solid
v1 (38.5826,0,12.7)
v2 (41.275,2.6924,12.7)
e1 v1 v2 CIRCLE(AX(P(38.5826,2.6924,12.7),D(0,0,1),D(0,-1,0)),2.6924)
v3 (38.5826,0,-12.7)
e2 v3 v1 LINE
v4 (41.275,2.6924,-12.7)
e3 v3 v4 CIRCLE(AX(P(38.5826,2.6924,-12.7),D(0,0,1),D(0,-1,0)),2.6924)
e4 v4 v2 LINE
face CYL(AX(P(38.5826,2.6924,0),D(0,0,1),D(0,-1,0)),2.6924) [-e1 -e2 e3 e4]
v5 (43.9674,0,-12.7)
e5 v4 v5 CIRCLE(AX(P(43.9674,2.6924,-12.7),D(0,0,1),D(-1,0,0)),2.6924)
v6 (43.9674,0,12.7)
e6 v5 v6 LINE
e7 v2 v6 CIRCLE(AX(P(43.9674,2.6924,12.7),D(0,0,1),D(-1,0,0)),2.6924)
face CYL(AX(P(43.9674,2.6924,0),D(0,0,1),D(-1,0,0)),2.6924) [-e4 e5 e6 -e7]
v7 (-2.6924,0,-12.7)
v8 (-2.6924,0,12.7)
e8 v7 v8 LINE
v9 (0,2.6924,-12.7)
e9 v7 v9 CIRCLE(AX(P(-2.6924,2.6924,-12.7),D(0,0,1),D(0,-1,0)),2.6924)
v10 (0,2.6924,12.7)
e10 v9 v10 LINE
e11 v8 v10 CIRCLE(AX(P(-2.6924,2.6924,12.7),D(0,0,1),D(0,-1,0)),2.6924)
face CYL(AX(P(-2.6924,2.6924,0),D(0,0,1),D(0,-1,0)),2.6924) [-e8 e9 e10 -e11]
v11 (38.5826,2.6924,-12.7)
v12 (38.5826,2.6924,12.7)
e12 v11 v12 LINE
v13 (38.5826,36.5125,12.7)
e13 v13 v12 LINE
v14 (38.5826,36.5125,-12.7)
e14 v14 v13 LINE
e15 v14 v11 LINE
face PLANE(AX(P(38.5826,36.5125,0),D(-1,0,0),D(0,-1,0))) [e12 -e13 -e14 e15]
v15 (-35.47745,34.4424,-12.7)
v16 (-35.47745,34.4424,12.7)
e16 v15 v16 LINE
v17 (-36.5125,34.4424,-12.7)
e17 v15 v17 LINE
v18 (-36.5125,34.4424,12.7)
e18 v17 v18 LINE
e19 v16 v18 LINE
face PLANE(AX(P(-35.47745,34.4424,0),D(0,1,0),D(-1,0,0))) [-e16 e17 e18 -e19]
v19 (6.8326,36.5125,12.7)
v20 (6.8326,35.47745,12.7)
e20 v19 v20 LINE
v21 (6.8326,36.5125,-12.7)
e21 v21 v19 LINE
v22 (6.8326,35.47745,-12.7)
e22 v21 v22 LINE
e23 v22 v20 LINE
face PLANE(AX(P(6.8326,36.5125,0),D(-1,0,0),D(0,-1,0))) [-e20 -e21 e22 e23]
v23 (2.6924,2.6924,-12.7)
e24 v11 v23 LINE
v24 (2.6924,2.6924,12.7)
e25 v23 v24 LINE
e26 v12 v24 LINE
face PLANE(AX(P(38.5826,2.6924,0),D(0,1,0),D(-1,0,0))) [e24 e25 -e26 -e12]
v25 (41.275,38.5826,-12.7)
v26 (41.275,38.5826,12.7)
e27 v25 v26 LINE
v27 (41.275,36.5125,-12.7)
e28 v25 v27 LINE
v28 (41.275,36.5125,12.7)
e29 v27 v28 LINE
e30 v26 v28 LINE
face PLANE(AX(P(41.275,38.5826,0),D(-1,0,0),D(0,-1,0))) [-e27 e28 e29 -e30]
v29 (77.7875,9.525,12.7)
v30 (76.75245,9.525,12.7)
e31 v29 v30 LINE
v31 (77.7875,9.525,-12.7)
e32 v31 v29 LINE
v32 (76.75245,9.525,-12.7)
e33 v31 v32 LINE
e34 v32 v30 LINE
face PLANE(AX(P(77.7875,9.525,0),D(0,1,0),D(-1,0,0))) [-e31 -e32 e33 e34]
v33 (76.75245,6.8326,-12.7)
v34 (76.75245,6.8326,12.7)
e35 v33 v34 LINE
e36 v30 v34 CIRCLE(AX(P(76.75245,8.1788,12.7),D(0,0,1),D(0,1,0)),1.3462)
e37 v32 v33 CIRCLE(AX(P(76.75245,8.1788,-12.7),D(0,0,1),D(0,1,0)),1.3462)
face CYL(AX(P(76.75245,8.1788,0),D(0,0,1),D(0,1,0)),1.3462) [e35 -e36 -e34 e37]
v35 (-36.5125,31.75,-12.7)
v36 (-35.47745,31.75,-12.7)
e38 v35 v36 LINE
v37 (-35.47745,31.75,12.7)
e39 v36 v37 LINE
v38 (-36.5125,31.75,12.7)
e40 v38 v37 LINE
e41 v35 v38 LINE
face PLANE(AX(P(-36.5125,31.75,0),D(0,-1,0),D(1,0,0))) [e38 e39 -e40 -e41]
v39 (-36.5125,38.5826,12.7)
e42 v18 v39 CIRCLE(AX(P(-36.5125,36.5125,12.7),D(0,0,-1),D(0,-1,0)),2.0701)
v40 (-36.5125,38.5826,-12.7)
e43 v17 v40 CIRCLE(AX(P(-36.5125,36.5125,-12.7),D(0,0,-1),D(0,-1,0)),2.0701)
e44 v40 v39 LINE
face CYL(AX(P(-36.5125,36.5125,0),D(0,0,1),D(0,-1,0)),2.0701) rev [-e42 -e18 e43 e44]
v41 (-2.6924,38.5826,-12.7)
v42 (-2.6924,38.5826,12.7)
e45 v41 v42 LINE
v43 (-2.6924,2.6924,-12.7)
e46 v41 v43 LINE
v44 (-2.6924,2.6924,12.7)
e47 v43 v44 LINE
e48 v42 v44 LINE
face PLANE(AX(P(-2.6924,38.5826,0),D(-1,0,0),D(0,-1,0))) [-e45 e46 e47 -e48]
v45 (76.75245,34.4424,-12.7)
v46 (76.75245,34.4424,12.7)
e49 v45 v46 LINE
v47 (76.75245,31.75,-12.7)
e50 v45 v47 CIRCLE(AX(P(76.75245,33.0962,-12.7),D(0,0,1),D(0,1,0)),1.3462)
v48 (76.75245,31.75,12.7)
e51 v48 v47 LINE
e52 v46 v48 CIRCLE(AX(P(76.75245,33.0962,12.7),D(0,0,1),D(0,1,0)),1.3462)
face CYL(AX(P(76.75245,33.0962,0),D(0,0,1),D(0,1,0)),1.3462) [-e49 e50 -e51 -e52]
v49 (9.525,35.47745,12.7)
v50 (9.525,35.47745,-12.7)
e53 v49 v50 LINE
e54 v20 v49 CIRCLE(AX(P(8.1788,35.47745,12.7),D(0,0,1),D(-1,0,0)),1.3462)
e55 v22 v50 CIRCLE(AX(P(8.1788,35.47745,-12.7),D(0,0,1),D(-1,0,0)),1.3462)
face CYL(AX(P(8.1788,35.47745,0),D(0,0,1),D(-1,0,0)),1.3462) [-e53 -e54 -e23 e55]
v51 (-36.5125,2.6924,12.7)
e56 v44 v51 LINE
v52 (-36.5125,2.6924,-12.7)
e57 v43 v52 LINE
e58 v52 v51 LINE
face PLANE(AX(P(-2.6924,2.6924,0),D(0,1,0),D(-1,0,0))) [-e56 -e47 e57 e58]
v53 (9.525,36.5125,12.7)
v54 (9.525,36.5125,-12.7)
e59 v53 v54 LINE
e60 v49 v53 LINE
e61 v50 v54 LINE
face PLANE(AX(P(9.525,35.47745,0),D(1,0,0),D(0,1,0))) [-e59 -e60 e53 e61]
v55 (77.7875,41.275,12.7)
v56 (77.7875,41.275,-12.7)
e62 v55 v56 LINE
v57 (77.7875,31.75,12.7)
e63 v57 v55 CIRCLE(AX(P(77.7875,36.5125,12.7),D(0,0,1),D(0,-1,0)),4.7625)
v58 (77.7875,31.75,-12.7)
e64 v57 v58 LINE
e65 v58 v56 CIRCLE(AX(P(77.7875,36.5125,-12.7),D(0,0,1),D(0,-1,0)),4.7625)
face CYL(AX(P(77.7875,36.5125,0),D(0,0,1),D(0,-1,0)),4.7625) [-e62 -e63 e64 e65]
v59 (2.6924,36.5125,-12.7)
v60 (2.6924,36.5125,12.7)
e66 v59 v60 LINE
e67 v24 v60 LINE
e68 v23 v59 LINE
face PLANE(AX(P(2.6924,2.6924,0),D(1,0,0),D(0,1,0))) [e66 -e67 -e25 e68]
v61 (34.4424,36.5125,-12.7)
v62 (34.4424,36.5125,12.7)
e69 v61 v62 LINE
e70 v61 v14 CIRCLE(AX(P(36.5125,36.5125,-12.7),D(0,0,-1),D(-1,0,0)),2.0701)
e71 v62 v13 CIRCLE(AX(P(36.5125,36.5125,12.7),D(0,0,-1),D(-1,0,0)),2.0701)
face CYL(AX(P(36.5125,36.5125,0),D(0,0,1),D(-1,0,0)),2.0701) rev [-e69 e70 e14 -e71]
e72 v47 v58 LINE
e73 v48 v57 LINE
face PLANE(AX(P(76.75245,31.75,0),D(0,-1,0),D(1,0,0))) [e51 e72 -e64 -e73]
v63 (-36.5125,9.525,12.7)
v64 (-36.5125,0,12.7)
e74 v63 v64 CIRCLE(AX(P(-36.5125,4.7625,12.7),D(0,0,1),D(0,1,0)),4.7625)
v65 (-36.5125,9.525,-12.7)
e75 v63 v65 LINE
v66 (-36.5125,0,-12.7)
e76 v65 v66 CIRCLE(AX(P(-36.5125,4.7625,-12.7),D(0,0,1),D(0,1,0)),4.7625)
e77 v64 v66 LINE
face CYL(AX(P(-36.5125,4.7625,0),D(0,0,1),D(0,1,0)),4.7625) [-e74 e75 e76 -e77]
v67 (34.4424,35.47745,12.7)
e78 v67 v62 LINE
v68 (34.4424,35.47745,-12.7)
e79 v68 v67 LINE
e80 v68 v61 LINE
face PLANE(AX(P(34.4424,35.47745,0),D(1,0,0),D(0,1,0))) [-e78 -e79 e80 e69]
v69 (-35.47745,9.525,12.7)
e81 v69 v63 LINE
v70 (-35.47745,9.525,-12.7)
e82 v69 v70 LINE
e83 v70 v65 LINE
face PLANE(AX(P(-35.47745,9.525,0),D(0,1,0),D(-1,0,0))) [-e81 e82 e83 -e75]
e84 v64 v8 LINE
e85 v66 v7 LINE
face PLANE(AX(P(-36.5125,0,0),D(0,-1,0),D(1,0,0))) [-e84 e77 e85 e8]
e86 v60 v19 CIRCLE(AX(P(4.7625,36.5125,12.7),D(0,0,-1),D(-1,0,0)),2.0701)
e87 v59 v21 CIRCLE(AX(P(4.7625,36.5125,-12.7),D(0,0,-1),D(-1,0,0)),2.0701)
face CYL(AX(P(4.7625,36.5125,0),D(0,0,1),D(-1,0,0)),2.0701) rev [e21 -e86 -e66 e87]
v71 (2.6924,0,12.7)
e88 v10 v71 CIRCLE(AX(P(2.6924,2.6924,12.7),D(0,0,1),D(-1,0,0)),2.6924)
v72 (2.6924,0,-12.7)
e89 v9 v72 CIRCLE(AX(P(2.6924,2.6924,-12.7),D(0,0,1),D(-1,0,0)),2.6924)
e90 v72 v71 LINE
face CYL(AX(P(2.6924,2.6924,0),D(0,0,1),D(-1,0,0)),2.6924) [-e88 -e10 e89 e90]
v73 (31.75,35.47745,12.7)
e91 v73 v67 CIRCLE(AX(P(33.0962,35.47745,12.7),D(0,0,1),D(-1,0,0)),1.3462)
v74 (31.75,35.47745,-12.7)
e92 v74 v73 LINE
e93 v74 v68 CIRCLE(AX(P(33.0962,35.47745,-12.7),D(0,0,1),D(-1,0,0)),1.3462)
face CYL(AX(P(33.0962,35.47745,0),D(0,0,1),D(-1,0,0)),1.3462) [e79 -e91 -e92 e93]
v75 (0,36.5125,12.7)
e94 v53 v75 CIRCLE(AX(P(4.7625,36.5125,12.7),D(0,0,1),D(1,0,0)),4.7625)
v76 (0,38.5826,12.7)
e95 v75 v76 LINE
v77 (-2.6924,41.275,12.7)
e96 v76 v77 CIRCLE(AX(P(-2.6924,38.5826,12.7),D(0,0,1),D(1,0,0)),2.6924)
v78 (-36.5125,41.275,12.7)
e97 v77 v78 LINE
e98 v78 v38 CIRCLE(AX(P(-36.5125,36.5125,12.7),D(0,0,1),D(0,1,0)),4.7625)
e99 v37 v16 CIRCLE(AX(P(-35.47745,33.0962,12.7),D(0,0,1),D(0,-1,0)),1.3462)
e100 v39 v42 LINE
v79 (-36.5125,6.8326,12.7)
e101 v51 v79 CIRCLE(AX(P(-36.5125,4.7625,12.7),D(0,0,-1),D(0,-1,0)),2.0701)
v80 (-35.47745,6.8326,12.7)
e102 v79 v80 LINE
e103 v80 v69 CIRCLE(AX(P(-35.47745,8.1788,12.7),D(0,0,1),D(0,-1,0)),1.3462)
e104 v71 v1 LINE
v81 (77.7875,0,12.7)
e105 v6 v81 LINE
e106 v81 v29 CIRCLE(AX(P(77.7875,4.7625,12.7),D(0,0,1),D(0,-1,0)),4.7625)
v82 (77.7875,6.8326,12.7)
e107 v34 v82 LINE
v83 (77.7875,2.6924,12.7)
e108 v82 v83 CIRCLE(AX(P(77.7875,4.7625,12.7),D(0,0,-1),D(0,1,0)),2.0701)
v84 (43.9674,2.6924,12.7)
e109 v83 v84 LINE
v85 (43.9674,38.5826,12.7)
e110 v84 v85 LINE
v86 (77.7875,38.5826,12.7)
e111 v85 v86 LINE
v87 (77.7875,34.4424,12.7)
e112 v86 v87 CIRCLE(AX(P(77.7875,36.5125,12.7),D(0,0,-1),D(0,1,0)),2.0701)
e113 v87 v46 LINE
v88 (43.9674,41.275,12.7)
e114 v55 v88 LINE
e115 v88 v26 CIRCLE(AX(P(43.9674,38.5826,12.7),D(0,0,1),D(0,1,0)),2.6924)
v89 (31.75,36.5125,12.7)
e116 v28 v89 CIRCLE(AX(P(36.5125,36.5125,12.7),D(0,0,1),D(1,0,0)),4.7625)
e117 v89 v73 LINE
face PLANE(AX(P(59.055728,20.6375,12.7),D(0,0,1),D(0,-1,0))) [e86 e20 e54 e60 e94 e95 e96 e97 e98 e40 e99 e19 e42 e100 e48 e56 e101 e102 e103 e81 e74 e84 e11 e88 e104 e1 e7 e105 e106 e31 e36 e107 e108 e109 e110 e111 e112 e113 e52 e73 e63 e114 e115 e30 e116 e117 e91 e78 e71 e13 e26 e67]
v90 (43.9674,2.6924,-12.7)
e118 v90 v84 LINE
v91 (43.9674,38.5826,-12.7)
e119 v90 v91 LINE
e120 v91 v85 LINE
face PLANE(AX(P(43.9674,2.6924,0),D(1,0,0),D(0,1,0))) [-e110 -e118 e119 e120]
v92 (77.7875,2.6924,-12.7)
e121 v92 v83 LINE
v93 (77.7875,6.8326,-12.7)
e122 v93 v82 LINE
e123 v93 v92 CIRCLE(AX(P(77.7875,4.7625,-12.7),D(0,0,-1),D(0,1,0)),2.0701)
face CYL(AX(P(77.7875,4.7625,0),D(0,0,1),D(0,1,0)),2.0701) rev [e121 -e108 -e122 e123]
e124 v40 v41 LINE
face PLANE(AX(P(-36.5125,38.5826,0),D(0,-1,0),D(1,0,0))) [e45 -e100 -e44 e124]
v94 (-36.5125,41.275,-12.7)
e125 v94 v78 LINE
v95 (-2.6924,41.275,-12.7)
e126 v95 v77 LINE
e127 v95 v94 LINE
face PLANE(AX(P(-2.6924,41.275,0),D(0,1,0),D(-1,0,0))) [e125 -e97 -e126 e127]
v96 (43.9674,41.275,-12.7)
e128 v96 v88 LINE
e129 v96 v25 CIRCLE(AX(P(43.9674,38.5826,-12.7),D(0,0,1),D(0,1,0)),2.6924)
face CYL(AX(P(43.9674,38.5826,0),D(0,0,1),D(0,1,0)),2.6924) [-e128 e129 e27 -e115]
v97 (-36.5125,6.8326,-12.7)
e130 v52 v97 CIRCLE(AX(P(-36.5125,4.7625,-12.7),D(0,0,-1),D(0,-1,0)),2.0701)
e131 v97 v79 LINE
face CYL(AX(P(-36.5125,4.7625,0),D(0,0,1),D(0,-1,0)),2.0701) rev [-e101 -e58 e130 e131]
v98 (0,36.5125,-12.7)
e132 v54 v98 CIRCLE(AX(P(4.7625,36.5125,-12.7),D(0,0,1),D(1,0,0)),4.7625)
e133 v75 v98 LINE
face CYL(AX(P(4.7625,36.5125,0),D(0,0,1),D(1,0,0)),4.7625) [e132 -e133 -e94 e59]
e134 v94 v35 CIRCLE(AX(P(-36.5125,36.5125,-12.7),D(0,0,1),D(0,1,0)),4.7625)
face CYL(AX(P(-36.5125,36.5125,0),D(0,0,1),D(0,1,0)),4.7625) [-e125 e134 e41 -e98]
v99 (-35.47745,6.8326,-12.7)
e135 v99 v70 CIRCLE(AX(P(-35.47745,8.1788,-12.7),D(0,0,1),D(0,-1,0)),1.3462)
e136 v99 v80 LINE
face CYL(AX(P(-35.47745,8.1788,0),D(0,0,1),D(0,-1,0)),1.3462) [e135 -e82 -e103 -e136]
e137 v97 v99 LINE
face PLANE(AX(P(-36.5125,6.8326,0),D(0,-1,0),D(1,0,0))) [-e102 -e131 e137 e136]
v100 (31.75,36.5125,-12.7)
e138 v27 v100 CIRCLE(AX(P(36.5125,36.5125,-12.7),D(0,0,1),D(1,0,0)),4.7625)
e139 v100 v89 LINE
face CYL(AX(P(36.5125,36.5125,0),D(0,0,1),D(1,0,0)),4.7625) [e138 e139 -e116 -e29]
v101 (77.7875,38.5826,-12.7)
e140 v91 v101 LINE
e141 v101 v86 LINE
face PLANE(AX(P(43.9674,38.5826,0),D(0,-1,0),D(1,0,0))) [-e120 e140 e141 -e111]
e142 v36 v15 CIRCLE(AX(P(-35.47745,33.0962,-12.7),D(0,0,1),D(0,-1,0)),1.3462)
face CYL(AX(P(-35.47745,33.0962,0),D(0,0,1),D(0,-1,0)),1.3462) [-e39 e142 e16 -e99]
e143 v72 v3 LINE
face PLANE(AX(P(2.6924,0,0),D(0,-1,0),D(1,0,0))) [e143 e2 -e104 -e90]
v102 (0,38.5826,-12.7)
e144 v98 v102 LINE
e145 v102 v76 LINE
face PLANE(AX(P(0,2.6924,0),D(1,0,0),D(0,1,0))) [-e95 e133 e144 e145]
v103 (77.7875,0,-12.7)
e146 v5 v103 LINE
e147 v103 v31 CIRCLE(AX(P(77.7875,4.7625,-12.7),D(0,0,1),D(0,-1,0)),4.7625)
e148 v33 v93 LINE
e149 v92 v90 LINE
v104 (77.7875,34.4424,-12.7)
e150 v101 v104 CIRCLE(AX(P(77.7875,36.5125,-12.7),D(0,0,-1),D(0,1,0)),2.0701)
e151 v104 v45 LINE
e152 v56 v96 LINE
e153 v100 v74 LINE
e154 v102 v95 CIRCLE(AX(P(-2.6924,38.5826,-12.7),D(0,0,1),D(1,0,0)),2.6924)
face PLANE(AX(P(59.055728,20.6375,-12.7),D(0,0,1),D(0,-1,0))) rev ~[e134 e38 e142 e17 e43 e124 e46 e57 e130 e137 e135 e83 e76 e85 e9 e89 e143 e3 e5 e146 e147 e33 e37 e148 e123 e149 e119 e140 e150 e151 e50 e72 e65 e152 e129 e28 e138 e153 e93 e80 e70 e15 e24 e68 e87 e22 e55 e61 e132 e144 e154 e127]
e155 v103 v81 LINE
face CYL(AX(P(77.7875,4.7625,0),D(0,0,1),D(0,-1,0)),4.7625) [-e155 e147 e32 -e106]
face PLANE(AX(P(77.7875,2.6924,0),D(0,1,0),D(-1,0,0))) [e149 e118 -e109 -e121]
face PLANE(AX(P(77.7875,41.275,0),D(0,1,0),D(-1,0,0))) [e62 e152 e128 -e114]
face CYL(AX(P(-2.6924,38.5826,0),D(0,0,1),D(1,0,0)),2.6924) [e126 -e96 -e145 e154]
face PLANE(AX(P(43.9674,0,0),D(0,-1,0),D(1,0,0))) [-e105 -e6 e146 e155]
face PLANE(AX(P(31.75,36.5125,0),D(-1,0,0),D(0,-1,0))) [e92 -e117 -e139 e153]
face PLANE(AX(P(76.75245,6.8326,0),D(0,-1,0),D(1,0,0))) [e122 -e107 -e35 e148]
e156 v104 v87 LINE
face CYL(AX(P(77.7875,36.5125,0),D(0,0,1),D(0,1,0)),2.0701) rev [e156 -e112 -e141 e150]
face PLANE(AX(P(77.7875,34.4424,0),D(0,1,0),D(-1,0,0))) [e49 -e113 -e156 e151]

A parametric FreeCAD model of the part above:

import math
import FreeCAD as App
import Part
import Sketcher
Q = App.Units.Quantity

doc = App.newDocument("Part")
params = doc.addObject("Spreadsheet::Sheet", "Params")
for row, (alias, value) in enumerate([
    ("sketch1_radius", "0.106 in"),
    ("sketch1_radius2", "0.1875 in"),
    ("sketch1_width", "1.413 in"),
    ("pad1_length", "1 in"),
], start=1):
    params.set(f"A{row}", alias)
    params.set(f"B{row}", "=" + value)
    params.setAlias(f"B{row}", alias)

body = doc.addObject("PartDesign::Body", "Body")

sketch1 = body.newObject("Sketcher::SketchObject", "Sketch")
sketch1.AttachmentSupport = (doc.getObject("XY_Plane"), [""])
sketch1.MapMode = "FlatFace"
sketch1.addGeometry([
    Part.LineSegment(App.Vector(0, 36.5, 0), App.Vector(0, 2.7, 0)),
    Part.ArcOfCircle(Part.Circle(App.Vector(2.7, 2.7, 0), App.Vector(0, 0, 1), 2.7), math.radians(180), math.radians(270)),
    Part.LineSegment(App.Vector(2.7, 0, 0), App.Vector(38.6, 0, 0)),
    Part.ArcOfCircle(Part.Circle(App.Vector(38.6, 2.7, 0), App.Vector(0, 0, 1), 2.7), math.radians(-90), math.radians(0)),
    Part.LineSegment(App.Vector(41.3, 2.7, 0), App.Vector(41.3, 36.5, 0)),
    Part.ArcOfCircle(Part.Circle(App.Vector(36.5, 36.5, 0), App.Vector(0, 0, 1), 4.8), math.radians(0), math.radians(180)),
    Part.LineSegment(App.Vector(31.8, 36.5, 0), App.Vector(31.8, 35.5, 0)),
    Part.ArcOfCircle(Part.Circle(App.Vector(33.1, 35.5, 0), App.Vector(0, 0, 1), 1.3), math.radians(180), math.radians(360)),
    Part.LineSegment(App.Vector(34.4, 35.5, 0), App.Vector(34.4, 36.5, 0)),
    Part.ArcOfCircle(Part.Circle(App.Vector(36.5, 36.5, 0), App.Vector(0, 0, 1), 2.1), math.radians(0), math.radians(180)),
    Part.LineSegment(App.Vector(38.6, 36.5, 0), App.Vector(38.6, 2.7, 0)),
    Part.LineSegment(App.Vector(38.6, 2.7, 0), App.Vector(2.7, 2.7, 0)),
    Part.LineSegment(App.Vector(2.7, 2.7, 0), App.Vector(2.7, 36.5, 0)),
    Part.ArcOfCircle(Part.Circle(App.Vector(4.8, 36.5, 0), App.Vector(0, 0, 1), 2.1), math.radians(0), math.radians(180)),
    Part.LineSegment(App.Vector(6.8, 36.5, 0), App.Vector(6.8, 35.5, 0)),
    Part.ArcOfCircle(Part.Circle(App.Vector(8.2, 35.5, 0), App.Vector(0, 0, 1), 1.3), math.radians(180), math.radians(360)),
    Part.LineSegment(App.Vector(9.5, 35.5, 0), App.Vector(9.5, 36.5, 0)),
    Part.ArcOfCircle(Part.Circle(App.Vector(4.8, 36.5, 0), App.Vector(0, 0, 1), 4.8), math.radians(0), math.radians(180)),
], False)
sketch1.addConstraint([
    Sketcher.Constraint("Tangent", 0, 2, 1, 1),
    Sketcher.Constraint("Tangent", 1, 2, 2, 1),
    Sketcher.Constraint("Tangent", 2, 2, 3, 1),
    Sketcher.Constraint("Tangent", 3, 2, 4, 1),
    Sketcher.Constraint("Tangent", 4, 2, 5, 1),
    Sketcher.Constraint("Tangent", 5, 2, 6, 1),
    Sketcher.Constraint("Tangent", 6, 2, 7, 1),
    Sketcher.Constraint("Tangent", 7, 2, 8, 1),
    Sketcher.Constraint("Tangent", 8, 2, 9, 2),
    Sketcher.Constraint("Tangent", 9, 1, 10, 1),
    Sketcher.Constraint("Coincident", 10, 2, 11, 1),
    Sketcher.Constraint("Coincident", 11, 2, 12, 1),
    Sketcher.Constraint("Tangent", 12, 2, 13, 2),
    Sketcher.Constraint("Tangent", 13, 1, 14, 1),
    Sketcher.Constraint("Tangent", 14, 2, 15, 1),
    Sketcher.Constraint("Tangent", 15, 2, 16, 1),
    Sketcher.Constraint("Tangent", 16, 2, 17, 1),
    Sketcher.Constraint("Tangent", 17, 2, 0, 1),
    Sketcher.Constraint("Vertical", 0),
    Sketcher.Constraint("Horizontal", 2),
    Sketcher.Constraint("Vertical", 4),
    Sketcher.Constraint("Vertical", 6),
    Sketcher.Constraint("Vertical", 8),
    Sketcher.Constraint("Vertical", 10),
    Sketcher.Constraint("Horizontal", 11),
    Sketcher.Constraint("Vertical", 12),
    Sketcher.Constraint("Vertical", 14),
    Sketcher.Constraint("Vertical", 16),
    Sketcher.Constraint("Coincident", 9, 3, 5, 3),
    Sketcher.Constraint("Coincident", 17, 3, 13, 3),
    Sketcher.Constraint("Coincident", 10, 2, 3, 3),
    Sketcher.Constraint("Coincident", 11, 2, 1, 3),
    Sketcher.Constraint("Equal", 9, 13),
    Sketcher.Constraint("PointOnObject", 0, 2, -2),
    Sketcher.Constraint("PointOnObject", 1, 2, -1),
    Sketcher.Constraint("Horizontal", 9, 3, 13, 3),
    Sketcher.Constraint("Horizontal", 7, 3, 15, 3),
    Sketcher.Constraint("Radius", 1, Q("0.106 in")),
    Sketcher.Constraint("Radius", 5, Q("0.1875 in")),
    Sketcher.Constraint("DistanceX", 2, 1, 2, 2, Q("1.413 in")),
    Sketcher.Constraint("DistanceY", 0, 2, 0, 1, Q("1.3315 in")),
    Sketcher.Constraint("DistanceY", 6, 2, 6, 1, Q("1.03505 mm")),
])
sketch1.setExpression("Constraints[37]", "Params.sketch1_radius")
sketch1.setExpression("Constraints[38]", "Params.sketch1_radius2")
sketch1.setExpression("Constraints[39]", "Params.sketch1_width")
pad1 = body.newObject("PartDesign::Pad", "Pad")
pad1.Profile = sketch1
pad1.setExpression("Length", "Params.pad1_length")
pad1.Midplane = True
doc.recompute()

polarpattern = body.newObject("PartDesign::PolarPattern", "PolarPattern")
polarpattern.Originals = [pad1]
polarpattern.Axis = (doc.getObject("Z_Axis"), [""])
polarpattern.Angle = 90
polarpattern.Occurrences = 2
body.Tip = polarpattern
doc.recompute()

datumline = body.newObject("PartDesign::Line", "DatumLine")
datumline.Placement = App.Placement(App.Vector(41.275, 0, 0), App.Rotation(App.Vector(0, 0, 1), App.Vector(0, 0, -1)))
polarpattern2 = body.newObject("PartDesign::PolarPattern", "PolarPattern001")
polarpattern2.Originals = [pad1]
polarpattern2.Axis = (datumline, [""])
polarpattern2.Angle = 90
polarpattern2.Occurrences = 2
body.Tip = polarpattern2

doc.recompute()
